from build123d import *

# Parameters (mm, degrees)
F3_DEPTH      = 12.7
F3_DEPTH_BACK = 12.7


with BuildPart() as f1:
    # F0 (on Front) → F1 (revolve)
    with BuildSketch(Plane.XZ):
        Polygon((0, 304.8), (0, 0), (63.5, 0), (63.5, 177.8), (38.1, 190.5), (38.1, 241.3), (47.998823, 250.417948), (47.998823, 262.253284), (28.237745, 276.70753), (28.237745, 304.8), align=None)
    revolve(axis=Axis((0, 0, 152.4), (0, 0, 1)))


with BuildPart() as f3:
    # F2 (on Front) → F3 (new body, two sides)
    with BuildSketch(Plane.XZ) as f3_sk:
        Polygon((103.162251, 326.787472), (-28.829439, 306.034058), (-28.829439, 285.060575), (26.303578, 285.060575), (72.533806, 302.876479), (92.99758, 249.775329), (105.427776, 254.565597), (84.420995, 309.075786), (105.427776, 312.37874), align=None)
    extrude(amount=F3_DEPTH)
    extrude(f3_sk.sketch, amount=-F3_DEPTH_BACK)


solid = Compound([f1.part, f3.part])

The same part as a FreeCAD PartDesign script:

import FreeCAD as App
import Part
import Sketcher
from FreeCAD import Vector
Q = App.Units.Quantity


def add_polygon(sketch, points):
    """Adds a closed chain of lines whose ends are joined by coincident constraints."""
    first, n = sketch.GeometryCount, len(points)
    for a, b in zip(points, points[1:] + points[:1]):
        sketch.addGeometry(Part.LineSegment(App.Vector(*a, 0), App.Vector(*b, 0)), False)
    for i in range(n):
        sketch.addConstraint(Sketcher.Constraint("Coincident", first + i, 2, first + (i + 1) % n, 1))

doc = App.newDocument("Part")
body = doc.addObject("PartDesign::Body", "Body")

sketch1 = doc.addObject("Sketcher::SketchObject", "Sketch")
body.addObject(sketch1)
sketch1.AttachmentSupport = (doc.XZ_Plane, [""])
sketch1.MapMode = "FlatFace"
add_polygon(sketch1, [(0, 304.8), (0, 0), (63.5, 0), (63.5, 177.8), (38.1, 190.5), (38.1, 241.3), (47.998823, 250.417948), (47.998823, 262.253284), (28.237745, 276.70753), (28.237745, 304.8)])
sketch1.addConstraint([
    Sketcher.Constraint("Vertical", 0),
    Sketcher.Constraint("Horizontal", 1),
    Sketcher.Constraint("Vertical", 2),
    Sketcher.Constraint("Vertical", 4),
    Sketcher.Constraint("Vertical", 6),
    Sketcher.Constraint("Vertical", 8),
    Sketcher.Constraint("Horizontal", 9),
    Sketcher.Constraint("Coincident", 0, 2, -1, 1),
    Sketcher.Constraint("DistanceY", 0, 2, 0, 1, Q("12 in")),
    Sketcher.Constraint("DistanceY", 2, 1, 2, 2, Q("7 in")),
    Sketcher.Constraint("DistanceY", 4, 1, 4, 2, Q("2 in")),
    Sketcher.Constraint("DistanceX", 1, 1, 1, 2, Q("2.5 in")),
    Sketcher.Constraint("DistanceX", 3, 2, 2, 2, Q("1 in")),
    Sketcher.Constraint("DistanceY", -1, 1, 3, 2, Q("7.5 in")),
    Sketcher.Constraint("DistanceY", 8, 1, 8, 2, Q("28.09247 mm")),
    Sketcher.Constraint("Distance", 5, Q("13.45822 mm")),
    Sketcher.Constraint("DistanceX", 9, 2, 9, 1, Q("28.237745 mm")),
    Sketcher.Constraint("DistanceY", 6, 1, 6, 2, Q("11.835336 mm")),
    Sketcher.Constraint("DistanceY", -1, 1, 5, 2, Q("250.417948 mm")),
])
revolution = doc.addObject("PartDesign::Revolution", "Revolution")
body.addObject(revolution)
revolution.Profile = sketch1
revolution.ReferenceAxis = (sketch1, ["V_Axis"])
revolution.Angle = 360
body2 = doc.addObject("PartDesign::Body", "Body001")

sketch2 = doc.addObject("Sketcher::SketchObject", "Sketch001")
body2.addObject(sketch2)
sketch2.AttachmentSupport = (doc.getObject("XZ_Plane001"), [""])
sketch2.MapMode = "FlatFace"
add_polygon(sketch2, [(103.162251, 326.787472), (-28.829439, 306.034058), (-28.829439, 285.060575), (26.303578, 285.060575), (72.533806, 302.876479), (92.99758, 249.775329), (105.427776, 254.565597), (84.420995, 309.075786), (105.427776, 312.37874)])
sketch2.addConstraint([
    Sketcher.Constraint("Vertical", 1),
    Sketcher.Constraint("Horizontal", 2),
    Sketcher.Constraint("Perpendicular", 3, 4),
    Sketcher.Constraint("Perpendicular", 4, 5),
    Sketcher.Constraint("Perpendicular", 5, 6),
    Sketcher.Constraint("Parallel", 0, 7),
    Sketcher.Constraint("Perpendicular", 7, 8),
    Sketcher.Constraint("Vertical", 5, 2, 7, 2),
    Sketcher.Constraint("DistanceX", -1, 1, 5, 2, Q("4.1506998 in")),
    Sketcher.Constraint("DistanceX", 2, 2, 4, 2, Q("66.694002 mm")),
    Sketcher.Constraint("Distance", 7, Q("21.264862 mm")),
    Sketcher.Constraint("Distance", 8, Q("14.585752 mm")),
    Sketcher.Constraint("DistanceX", 2, 1, 2, 2, Q("55.133017 mm")),
    Sketcher.Constraint("DistanceY", 1, 2, 1, 1, Q("20.973483 mm")),
    Sketcher.Constraint("DistanceX", 0, 2, -1, 1, Q("28.829439 mm")),
    Sketcher.Constraint("DistanceY", -1, 1, 0, 2, Q("306.034058 mm")),
    Sketcher.Constraint("DistanceY", -1, 1, 3, 2, Q("302.876479 mm")),
    Sketcher.Constraint("DistanceY", -1, 1, 4, 2, Q("249.775329 mm")),
])
pad1 = doc.addObject("PartDesign::Pad", "Pad")
body2.addObject(pad1)
pad1.Profile = sketch2
pad1.Type = "TwoLengths"
pad1.Length = Q("0.5 in")
pad1.Length2 = Q("0.5 in")

doc.recompute()
